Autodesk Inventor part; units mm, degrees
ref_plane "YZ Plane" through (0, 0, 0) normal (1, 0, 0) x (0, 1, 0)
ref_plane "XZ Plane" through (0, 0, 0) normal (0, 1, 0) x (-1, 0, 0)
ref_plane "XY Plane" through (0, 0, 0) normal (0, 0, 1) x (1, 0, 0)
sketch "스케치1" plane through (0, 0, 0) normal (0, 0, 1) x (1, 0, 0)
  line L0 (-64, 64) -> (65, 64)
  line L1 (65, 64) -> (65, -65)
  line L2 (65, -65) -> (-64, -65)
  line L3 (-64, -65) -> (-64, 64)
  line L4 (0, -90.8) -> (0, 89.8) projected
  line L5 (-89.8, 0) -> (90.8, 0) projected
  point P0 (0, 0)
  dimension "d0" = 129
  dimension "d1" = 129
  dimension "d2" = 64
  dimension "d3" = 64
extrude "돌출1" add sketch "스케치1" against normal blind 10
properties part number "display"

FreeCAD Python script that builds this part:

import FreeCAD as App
import Part
import Sketcher
from FreeCAD import Vector
Q = App.Units.Quantity

doc = App.newDocument("Part")
body = doc.addObject("PartDesign::Body", "Body")

sketch1 = body.newObject("Sketcher::SketchObject", "Sketch")
sketch1.AttachmentSupport = (doc.getObject("XY_Plane"), [""])
sketch1.MapMode = "FlatFace"
sketch1.addGeometry([
    Part.LineSegment(Vector(-64, 64, 0), Vector(-64, -65, 0)),
    Part.LineSegment(Vector(-64, -65, 0), Vector(65, -65, 0)),
    Part.LineSegment(Vector(65, -65, 0), Vector(65, 64, 0)),
    Part.LineSegment(Vector(65, 64, 0), Vector(-64, 64, 0)),
], False)
sketch1.addConstraint([
    Sketcher.Constraint("Coincident", 0, 2, 1, 1),
    Sketcher.Constraint("Coincident", 1, 2, 2, 1),
    Sketcher.Constraint("Coincident", 2, 2, 3, 1),
    Sketcher.Constraint("Coincident", 3, 2, 0, 1),
    Sketcher.Constraint("Vertical", 0),
    Sketcher.Constraint("Horizontal", 1),
    Sketcher.Constraint("Vertical", 2),
    Sketcher.Constraint("Horizontal", 3),
    Sketcher.Constraint("Equal", 3, 0),
    Sketcher.Constraint("DistanceX", 1, 1, 1, 2, Q("129 mm")),
    Sketcher.Constraint("DistanceX", 0, 2, -1, 1, Q("64 mm")),
    Sketcher.Constraint("DistanceY", -1, 1, 2, 2, Q("64 mm")),
])
pad1 = body.newObject("PartDesign::Pad", "Pad")
pad1.Profile = sketch1
pad1.Length = 10
pad1.Reversed = True

doc.recompute()
